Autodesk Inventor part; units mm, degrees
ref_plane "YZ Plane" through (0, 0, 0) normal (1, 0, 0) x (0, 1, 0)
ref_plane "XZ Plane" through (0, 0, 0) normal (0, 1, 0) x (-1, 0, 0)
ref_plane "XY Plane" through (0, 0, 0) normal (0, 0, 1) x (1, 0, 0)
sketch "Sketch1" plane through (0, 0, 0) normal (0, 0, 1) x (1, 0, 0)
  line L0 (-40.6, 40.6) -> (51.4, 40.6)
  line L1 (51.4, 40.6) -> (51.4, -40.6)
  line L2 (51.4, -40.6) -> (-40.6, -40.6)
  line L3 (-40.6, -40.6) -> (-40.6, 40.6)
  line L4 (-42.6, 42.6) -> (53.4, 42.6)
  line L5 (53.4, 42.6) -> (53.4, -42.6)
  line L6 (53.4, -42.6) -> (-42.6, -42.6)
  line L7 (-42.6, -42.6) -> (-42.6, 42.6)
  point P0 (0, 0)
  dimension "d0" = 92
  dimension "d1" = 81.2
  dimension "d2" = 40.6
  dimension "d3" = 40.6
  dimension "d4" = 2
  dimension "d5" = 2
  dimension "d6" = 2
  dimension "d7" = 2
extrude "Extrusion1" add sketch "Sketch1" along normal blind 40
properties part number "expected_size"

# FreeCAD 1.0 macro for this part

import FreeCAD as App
import Part
import Sketcher

doc = App.newDocument("Part")
params = doc.addObject("Spreadsheet::Sheet", "Params")
for row, (alias, value) in enumerate([
    ("sketch1_width", "92 mm"),
    ("sketch1_height", "81.2 mm"),
    ("pad1_length", "40 mm"),
], start=1):
    params.set(f"A{row}", alias)
    params.set(f"B{row}", "=" + value)
    params.setAlias(f"B{row}", alias)

body = doc.addObject("PartDesign::Body", "Body")

sketch1 = doc.addObject("Sketcher::SketchObject", "Sketch")
body.addObject(sketch1)
sketch1.AttachmentSupport = (doc.XY_Plane, [""])
sketch1.MapMode = "FlatFace"
sketch1.addGeometry(Part.LineSegment(App.Vector(53.4, 42.6, 0), App.Vector(-42.6, 42.6, 0)), False)
sketch1.addGeometry(Part.LineSegment(App.Vector(-42.6, 42.6, 0), App.Vector(-42.6, -42.6, 0)), False)
sketch1.addGeometry(Part.LineSegment(App.Vector(-42.6, -42.6, 0), App.Vector(53.4, -42.6, 0)), False)
sketch1.addGeometry(Part.LineSegment(App.Vector(53.4, -42.6, 0), App.Vector(53.4, 42.6, 0)), False)
sketch1.addGeometry(Part.LineSegment(App.Vector(-40.6, -40.6, 0), App.Vector(-40.6, 40.6, 0)), False)
sketch1.addGeometry(Part.LineSegment(App.Vector(-40.6, 40.6, 0), App.Vector(51.4, 40.6, 0)), False)
sketch1.addGeometry(Part.LineSegment(App.Vector(51.4, 40.6, 0), App.Vector(51.4, -40.6, 0)), False)
sketch1.addGeometry(Part.LineSegment(App.Vector(51.4, -40.6, 0), App.Vector(-40.6, -40.6, 0)), False)
sketch1.addConstraint(Sketcher.Constraint("Coincident", 0, 2, 1, 1))
sketch1.addConstraint(Sketcher.Constraint("Coincident", 1, 2, 2, 1))
sketch1.addConstraint(Sketcher.Constraint("Coincident", 2, 2, 3, 1))
sketch1.addConstraint(Sketcher.Constraint("Coincident", 3, 2, 0, 1))
sketch1.addConstraint(Sketcher.Constraint("Coincident", 4, 2, 5, 1))
sketch1.addConstraint(Sketcher.Constraint("Coincident", 5, 2, 6, 1))
sketch1.addConstraint(Sketcher.Constraint("Coincident", 6, 2, 7, 1))
sketch1.addConstraint(Sketcher.Constraint("Coincident", 7, 2, 4, 1))
sketch1.addConstraint(Sketcher.Constraint("Horizontal", 0))
sketch1.addConstraint(Sketcher.Constraint("Vertical", 1))
sketch1.addConstraint(Sketcher.Constraint("Horizontal", 2))
sketch1.addConstraint(Sketcher.Constraint("Vertical", 3))
sketch1.addConstraint(Sketcher.Constraint("Vertical", 4))
sketch1.addConstraint(Sketcher.Constraint("Horizontal", 5))
sketch1.addConstraint(Sketcher.Constraint("Vertical", 6))
sketch1.addConstraint(Sketcher.Constraint("Horizontal", 7))
sketch1.addConstraint(Sketcher.Constraint("DistanceX", 5, 1, 5, 2, 92.0))
sketch1.addConstraint(Sketcher.Constraint("DistanceY", 4, 1, 4, 2, 81.2))
sketch1.addConstraint(Sketcher.Constraint("DistanceX", 0, 2, 4, 2, 2.0))
sketch1.addConstraint(Sketcher.Constraint("DistanceY", 4, 2, 0, 2, 2.0))
sketch1.addConstraint(Sketcher.Constraint("DistanceX", 5, 2, 3, 2, 2.0))
sketch1.addConstraint(Sketcher.Constraint("DistanceY", 2, 2, 6, 2, 2.0))
sketch1.addConstraint(Sketcher.Constraint("DistanceX", 4, 2, -1, 1, 40.6))
sketch1.addConstraint(Sketcher.Constraint("DistanceY", -1, 1, 4, 2, 40.6))
sketch1.setExpression("Constraints[16]", "Params.sketch1_width")
sketch1.setExpression("Constraints[17]", "Params.sketch1_height")
pad1 = doc.addObject("PartDesign::Pad", "Pad")
body.addObject(pad1)
pad1.Profile = sketch1
pad1.setExpression("Length", "Params.pad1_length")

doc.recompute()
